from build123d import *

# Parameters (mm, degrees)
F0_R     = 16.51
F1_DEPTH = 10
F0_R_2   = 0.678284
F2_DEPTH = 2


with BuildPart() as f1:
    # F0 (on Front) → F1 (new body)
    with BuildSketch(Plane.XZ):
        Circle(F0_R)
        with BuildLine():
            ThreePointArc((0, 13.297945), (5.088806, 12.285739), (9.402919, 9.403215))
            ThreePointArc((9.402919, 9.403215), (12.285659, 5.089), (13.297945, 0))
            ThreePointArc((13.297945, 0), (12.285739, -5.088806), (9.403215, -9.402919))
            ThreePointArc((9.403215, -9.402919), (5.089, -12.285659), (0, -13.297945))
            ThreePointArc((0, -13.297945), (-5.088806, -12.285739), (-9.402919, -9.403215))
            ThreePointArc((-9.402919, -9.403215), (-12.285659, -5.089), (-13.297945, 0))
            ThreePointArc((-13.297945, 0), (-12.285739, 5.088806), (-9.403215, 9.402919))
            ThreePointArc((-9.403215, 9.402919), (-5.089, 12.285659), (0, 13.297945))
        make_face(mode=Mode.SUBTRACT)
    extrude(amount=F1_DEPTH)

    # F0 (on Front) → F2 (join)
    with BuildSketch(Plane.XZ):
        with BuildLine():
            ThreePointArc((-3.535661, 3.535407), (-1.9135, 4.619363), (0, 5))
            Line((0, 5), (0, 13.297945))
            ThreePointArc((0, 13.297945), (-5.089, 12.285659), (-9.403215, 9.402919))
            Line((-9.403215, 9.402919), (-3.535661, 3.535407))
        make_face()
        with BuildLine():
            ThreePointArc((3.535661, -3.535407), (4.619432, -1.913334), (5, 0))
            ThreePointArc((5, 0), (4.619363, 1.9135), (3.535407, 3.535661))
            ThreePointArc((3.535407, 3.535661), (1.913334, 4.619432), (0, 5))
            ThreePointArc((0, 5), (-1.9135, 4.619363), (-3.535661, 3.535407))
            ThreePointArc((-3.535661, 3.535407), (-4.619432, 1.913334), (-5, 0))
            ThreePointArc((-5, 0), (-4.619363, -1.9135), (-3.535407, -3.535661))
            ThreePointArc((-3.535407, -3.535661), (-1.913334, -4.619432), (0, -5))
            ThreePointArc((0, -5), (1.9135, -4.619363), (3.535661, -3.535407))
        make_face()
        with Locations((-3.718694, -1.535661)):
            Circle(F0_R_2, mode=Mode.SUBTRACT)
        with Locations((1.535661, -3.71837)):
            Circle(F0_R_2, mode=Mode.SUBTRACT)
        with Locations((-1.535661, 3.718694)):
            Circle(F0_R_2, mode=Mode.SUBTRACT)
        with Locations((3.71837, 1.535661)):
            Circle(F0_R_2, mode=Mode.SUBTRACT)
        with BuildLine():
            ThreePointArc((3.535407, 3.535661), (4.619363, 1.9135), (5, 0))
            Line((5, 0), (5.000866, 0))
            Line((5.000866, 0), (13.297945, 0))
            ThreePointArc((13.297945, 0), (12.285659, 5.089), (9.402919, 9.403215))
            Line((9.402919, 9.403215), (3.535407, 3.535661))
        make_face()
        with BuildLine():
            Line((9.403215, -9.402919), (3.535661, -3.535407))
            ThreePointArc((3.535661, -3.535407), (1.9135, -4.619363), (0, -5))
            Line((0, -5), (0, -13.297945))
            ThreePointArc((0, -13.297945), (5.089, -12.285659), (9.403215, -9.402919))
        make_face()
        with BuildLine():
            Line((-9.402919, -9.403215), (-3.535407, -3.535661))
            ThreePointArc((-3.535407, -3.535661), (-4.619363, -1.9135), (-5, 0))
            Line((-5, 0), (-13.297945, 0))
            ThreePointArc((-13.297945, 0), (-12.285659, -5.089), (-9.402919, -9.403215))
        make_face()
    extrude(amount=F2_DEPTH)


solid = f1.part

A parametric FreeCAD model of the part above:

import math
import FreeCAD as App
import Part
import Sketcher

V = App.Vector
Q = App.Units.Quantity

doc = App.newDocument("Part")
body = doc.addObject("PartDesign::Body", "Body")

sketch1 = doc.addObject("Sketcher::SketchObject", "Sketch")
body.addObject(sketch1)
sketch1.AttachmentSupport = (doc.XZ_Plane, [""])
sketch1.MapMode = "FlatFace"
sketch1.addGeometry([
    Part.Circle(V(0, 0, 0), V(0, 0, 1), 17),
    Part.ArcOfCircle(Part.Circle(V(0, 0, 0), V(0, 0, 1), 13), math.radians(90), math.radians(135)),
    Part.ArcOfCircle(Part.Circle(V(0, 0, 0), V(0, 0, 1), 13), math.radians(45), math.radians(90)),
    Part.ArcOfCircle(Part.Circle(V(0, 0, 0), V(0, 0, 1), 13), math.radians(0), math.radians(45)),
    Part.ArcOfCircle(Part.Circle(V(0, 0, 0), V(0, 0, 1), 13), math.radians(-45), math.radians(0)),
    Part.ArcOfCircle(Part.Circle(V(0, 0, 0), V(0, 0, 1), 13), math.radians(-90), math.radians(-45)),
    Part.ArcOfCircle(Part.Circle(V(0, 0, 0), V(0, 0, 1), 13), math.radians(-135), math.radians(-90)),
    Part.ArcOfCircle(Part.Circle(V(0, 0, 0), V(0, 0, 1), 13), math.radians(-180), math.radians(-135)),
    Part.ArcOfCircle(Part.Circle(V(0, 0, 0), V(0, 0, 1), 13), math.radians(135), math.radians(180)),
], False)
sketch1.addConstraint([
    Sketcher.Constraint("Tangent", 1, 1, 2, 2),
    Sketcher.Constraint("Tangent", 2, 1, 3, 2),
    Sketcher.Constraint("Tangent", 3, 1, 4, 2),
    Sketcher.Constraint("Tangent", 4, 1, 5, 2),
    Sketcher.Constraint("Tangent", 5, 1, 6, 2),
    Sketcher.Constraint("Tangent", 6, 1, 7, 2),
    Sketcher.Constraint("Tangent", 7, 1, 8, 2),
    Sketcher.Constraint("Tangent", 8, 1, 1, 2),
    Sketcher.Constraint("Coincident", 0, 3, -1, 1),
    Sketcher.Constraint("Coincident", 1, 3, -1, 1),
    Sketcher.Constraint("Coincident", 3, 3, -1, 1),
    Sketcher.Constraint("Coincident", 5, 3, -1, 1),
    Sketcher.Constraint("Equal", 4, 6),
    Sketcher.Constraint("PointOnObject", 1, 1, -2),
    Sketcher.Constraint("PointOnObject", 3, 1, -1),
    Sketcher.Constraint("PointOnObject", 5, 1, -2),
    Sketcher.Constraint("PointOnObject", 7, 1, -1),
    Sketcher.Constraint("Diameter", 0, Q("33.02 mm")),
    Sketcher.Constraint("Radius", 2, Q("13.29795 mm")),
    Sketcher.Constraint("DistanceX", -1, 1, 2, 1, Q("9.402919 mm")),
    Sketcher.Constraint("DistanceY", 4, 1, -1, 1, Q("9.402919 mm")),
    Sketcher.Constraint("DistanceX", 6, 1, -1, 1, Q("9.402919 mm")),
    Sketcher.Constraint("DistanceY", -1, 1, 8, 1, Q("9.402919 mm")),
])
pad1 = doc.addObject("PartDesign::Pad", "Pad")
body.addObject(pad1)
pad1.Profile = sketch1
pad1.Length = 10

sketch2 = doc.addObject("Sketcher::SketchObject", "Sketch001")
body.addObject(sketch2)
sketch2.AttachmentSupport = (doc.XZ_Plane, [""])
sketch2.MapMode = "FlatFace"
sketch2.addGeometry([
    Part.LineSegment(V(0, 5, 0), V(0, 13.3, 0)),
    Part.ArcOfCircle(Part.Circle(V(0, 0, 0), V(0, 0, 1), 13.3), math.radians(90), math.radians(135)),
    Part.LineSegment(V(-9.4, 9.4, 0), V(-3.5, 3.5, 0)),
    Part.ArcOfCircle(Part.Circle(V(0, 0, 0), V(0, 0, 1), 5), math.radians(135), math.radians(180)),
    Part.LineSegment(V(-5, 0, 0), V(-13.3, 0, 0)),
    Part.ArcOfCircle(Part.Circle(V(0, 0, 0), V(0, 0, 1), 13.3), math.radians(-180), math.radians(-135)),
    Part.LineSegment(V(-9.4, -9.4, 0), V(-3.5, -3.5, 0)),
    Part.ArcOfCircle(Part.Circle(V(0, 0, 0), V(0, 0, 1), 5), math.radians(-135), math.radians(-90)),
    Part.LineSegment(V(0, -5, 0), V(0, -13.3, 0)),
    Part.ArcOfCircle(Part.Circle(V(0, 0, 0), V(0, 0, 1), 13.3), math.radians(-90), math.radians(-45)),
    Part.LineSegment(V(9.4, -9.4, 0), V(3.5, -3.5, 0)),
    Part.ArcOfCircle(Part.Circle(V(0, 0, 0), V(0, 0, 1), 5), math.radians(-45), math.radians(0)),
    Part.LineSegment(V(5, 0, 0), V(13.3, 0, 0)),
    Part.ArcOfCircle(Part.Circle(V(0, 0, 0), V(0, 0, 1), 13.3), math.radians(0), math.radians(45)),
    Part.LineSegment(V(9.4, 9.4, 0), V(3.5, 3.5, 0)),
    Part.ArcOfCircle(Part.Circle(V(0, 0, 0), V(0, 0, 1), 5), math.radians(45), math.radians(90)),
    Part.Circle(V(-3.7, -1.5, 0), V(0, 0, 1), 0.7),
    Part.Circle(V(1.5, -3.7, 0), V(0, 0, 1), 0.7),
    Part.Circle(V(-1.5, 3.7, 0), V(0, 0, 1), 0.7),
    Part.Circle(V(3.7, 1.5, 0), V(0, 0, 1), 0.7),
], False)
sketch2.addConstraint([
    Sketcher.Constraint("Coincident", 0, 2, 1, 1),
    Sketcher.Constraint("Coincident", 1, 2, 2, 1),
    Sketcher.Constraint("Coincident", 2, 2, 3, 1),
    Sketcher.Constraint("Coincident", 3, 2, 4, 1),
    Sketcher.Constraint("Coincident", 4, 2, 5, 1),
    Sketcher.Constraint("Coincident", 5, 2, 6, 1),
    Sketcher.Constraint("Coincident", 6, 2, 7, 1),
    Sketcher.Constraint("Coincident", 7, 2, 8, 1),
    Sketcher.Constraint("Coincident", 8, 2, 9, 1),
    Sketcher.Constraint("Coincident", 9, 2, 10, 1),
    Sketcher.Constraint("Coincident", 10, 2, 11, 1),
    Sketcher.Constraint("Coincident", 11, 2, 12, 1),
    Sketcher.Constraint("Coincident", 12, 2, 13, 1),
    Sketcher.Constraint("Coincident", 13, 2, 14, 1),
    Sketcher.Constraint("Coincident", 14, 2, 15, 1),
    Sketcher.Constraint("Coincident", 15, 2, 0, 1),
    Sketcher.Constraint("Vertical", 0),
    Sketcher.Constraint("Horizontal", 4),
    Sketcher.Constraint("Vertical", 8),
    Sketcher.Constraint("Horizontal", 12),
    Sketcher.Constraint("Coincident", 1, 3, -1, 1),
    Sketcher.Constraint("Coincident", 3, 3, -1, 1),
    Sketcher.Constraint("Coincident", 5, 3, -1, 1),
    Sketcher.Constraint("Coincident", 7, 3, -1, 1),
    Sketcher.Constraint("Coincident", 9, 3, -1, 1),
    Sketcher.Constraint("Coincident", 11, 3, -1, 1),
    Sketcher.Constraint("Coincident", 13, 3, -1, 1),
    Sketcher.Constraint("Coincident", 15, 3, -1, 1),
    Sketcher.Constraint("Equal", 1, 5),
    Sketcher.Constraint("Equal", 3, 7),
    Sketcher.Constraint("Equal", 5, 9),
    Sketcher.Constraint("Equal", 7, 11),
    Sketcher.Constraint("Equal", 9, 13),
    Sketcher.Constraint("Equal", 11, 15),
    Sketcher.Constraint("Equal", 16, 17),
    Sketcher.Constraint("Equal", 17, 18),
    Sketcher.Constraint("Equal", 18, 19),
    Sketcher.Constraint("PointOnObject", 0, 2, -2),
    Sketcher.Constraint("PointOnObject", 3, 2, -1),
    Sketcher.Constraint("PointOnObject", 7, 2, -2),
    Sketcher.Constraint("PointOnObject", 11, 2, -1),
    Sketcher.Constraint("Perpendicular", 2, 6),
    Sketcher.Constraint("Perpendicular", 6, 10),
    Sketcher.Constraint("Perpendicular", 10, 14),
    Sketcher.Constraint("DistanceX", 3, 2, -1, 1, Q("5 mm")),
    Sketcher.Constraint("DistanceX", 2, 2, 18, 3, Q("2 mm")),
    Sketcher.Constraint("DistanceY", 6, 2, 16, 3, Q("2 mm")),
    Sketcher.Constraint("DistanceX", 17, 3, 10, 2, Q("2 mm")),
    Sketcher.Constraint("DistanceY", 19, 3, 14, 2, Q("2 mm")),
    Sketcher.Constraint("Diameter", 16, Q("1.356568 mm")),
    Sketcher.Constraint("Radius", 1, Q("13.297946 mm")),
    Sketcher.Constraint("DistanceY", 16, 3, -1, 1, Q("1.535661 mm")),
    Sketcher.Constraint("DistanceX", -1, 1, 17, 3, Q("1.535661 mm")),
    Sketcher.Constraint("DistanceY", 17, 3, -1, 1, Q("3.71837 mm")),
    Sketcher.Constraint("DistanceX", 18, 3, -1, 1, Q("1.535661 mm")),
    Sketcher.Constraint("DistanceX", -1, 1, 19, 3, Q("3.71837 mm")),
    Sketcher.Constraint("DistanceY", -1, 1, 19, 3, Q("1.535661 mm")),
    Sketcher.Constraint("DistanceY", -1, 1, 1, 2, Q("9.402919 mm")),
    Sketcher.Constraint("DistanceX", 16, 3, 11, 3, Q("3.718692 mm")),
    Sketcher.Constraint("DistanceY", 7, 3, 18, 3, Q("3.718692 mm")),
])
pad2 = doc.addObject("PartDesign::Pad", "Pad001")
body.addObject(pad2)
pad2.Profile = sketch2
pad2.Length = 2

doc.recompute()
